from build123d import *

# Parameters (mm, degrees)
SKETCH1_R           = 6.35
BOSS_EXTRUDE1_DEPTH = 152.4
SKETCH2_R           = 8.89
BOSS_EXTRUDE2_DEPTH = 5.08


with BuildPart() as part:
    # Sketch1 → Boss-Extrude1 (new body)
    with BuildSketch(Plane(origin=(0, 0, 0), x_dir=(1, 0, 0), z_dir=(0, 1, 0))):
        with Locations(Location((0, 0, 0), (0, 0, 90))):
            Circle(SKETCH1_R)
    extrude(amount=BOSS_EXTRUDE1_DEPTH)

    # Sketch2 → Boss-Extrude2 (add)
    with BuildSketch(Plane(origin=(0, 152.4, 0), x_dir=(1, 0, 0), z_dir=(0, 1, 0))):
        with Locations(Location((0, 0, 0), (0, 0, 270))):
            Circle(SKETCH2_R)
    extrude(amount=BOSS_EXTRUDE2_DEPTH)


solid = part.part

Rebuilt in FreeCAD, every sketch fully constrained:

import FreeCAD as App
import Part
import Sketcher

V = App.Vector
Q = App.Units.Quantity

doc = App.newDocument("Part")
body = doc.addObject("PartDesign::Body", "Body")

# Sketch on XZ plane
sketch1 = body.newObject("Sketcher::SketchObject", "Sketch")
sketch1.AttachmentSupport = (doc.getObject("XZ_Plane"), [""])
sketch1.MapMode = "FlatFace"
sketch1.addGeometry(Part.Circle(V(0, 0, 0), V(0, 0, 1), 6), False)
sketch1.addConstraint(Sketcher.Constraint("Coincident", 0, 3, -1, 1))
sketch1.addConstraint(Sketcher.Constraint("Diameter", 0, Q("0.5 in")))
pad1 = body.newObject("PartDesign::Pad", "Pad")
pad1.Profile = sketch1
pad1.Length = Q("6 in")
pad1.Reversed = True

# Sketch on XZ plane
sketch2 = body.newObject("Sketcher::SketchObject", "Sketch001")
sketch2.AttachmentSupport = (doc.getObject("XZ_Plane"), [""])
sketch2.MapMode = "FlatFace"
sketch2.AttachmentOffset = App.Placement(V(0, 0, -6 * 25.4), App.Rotation())
sketch2.addGeometry(Part.Circle(V(0, 0, 0), V(0, 0, 1), 9), False)
sketch2.addConstraint(Sketcher.Constraint("Coincident", 0, 3, -1, 1))
sketch2.addConstraint(Sketcher.Constraint("Diameter", 0, Q("0.7 in")))
pad2 = body.newObject("PartDesign::Pad", "Pad001")
pad2.Profile = sketch2
pad2.Length = Q("0.2 in")
pad2.Reversed = True

doc.recompute()
